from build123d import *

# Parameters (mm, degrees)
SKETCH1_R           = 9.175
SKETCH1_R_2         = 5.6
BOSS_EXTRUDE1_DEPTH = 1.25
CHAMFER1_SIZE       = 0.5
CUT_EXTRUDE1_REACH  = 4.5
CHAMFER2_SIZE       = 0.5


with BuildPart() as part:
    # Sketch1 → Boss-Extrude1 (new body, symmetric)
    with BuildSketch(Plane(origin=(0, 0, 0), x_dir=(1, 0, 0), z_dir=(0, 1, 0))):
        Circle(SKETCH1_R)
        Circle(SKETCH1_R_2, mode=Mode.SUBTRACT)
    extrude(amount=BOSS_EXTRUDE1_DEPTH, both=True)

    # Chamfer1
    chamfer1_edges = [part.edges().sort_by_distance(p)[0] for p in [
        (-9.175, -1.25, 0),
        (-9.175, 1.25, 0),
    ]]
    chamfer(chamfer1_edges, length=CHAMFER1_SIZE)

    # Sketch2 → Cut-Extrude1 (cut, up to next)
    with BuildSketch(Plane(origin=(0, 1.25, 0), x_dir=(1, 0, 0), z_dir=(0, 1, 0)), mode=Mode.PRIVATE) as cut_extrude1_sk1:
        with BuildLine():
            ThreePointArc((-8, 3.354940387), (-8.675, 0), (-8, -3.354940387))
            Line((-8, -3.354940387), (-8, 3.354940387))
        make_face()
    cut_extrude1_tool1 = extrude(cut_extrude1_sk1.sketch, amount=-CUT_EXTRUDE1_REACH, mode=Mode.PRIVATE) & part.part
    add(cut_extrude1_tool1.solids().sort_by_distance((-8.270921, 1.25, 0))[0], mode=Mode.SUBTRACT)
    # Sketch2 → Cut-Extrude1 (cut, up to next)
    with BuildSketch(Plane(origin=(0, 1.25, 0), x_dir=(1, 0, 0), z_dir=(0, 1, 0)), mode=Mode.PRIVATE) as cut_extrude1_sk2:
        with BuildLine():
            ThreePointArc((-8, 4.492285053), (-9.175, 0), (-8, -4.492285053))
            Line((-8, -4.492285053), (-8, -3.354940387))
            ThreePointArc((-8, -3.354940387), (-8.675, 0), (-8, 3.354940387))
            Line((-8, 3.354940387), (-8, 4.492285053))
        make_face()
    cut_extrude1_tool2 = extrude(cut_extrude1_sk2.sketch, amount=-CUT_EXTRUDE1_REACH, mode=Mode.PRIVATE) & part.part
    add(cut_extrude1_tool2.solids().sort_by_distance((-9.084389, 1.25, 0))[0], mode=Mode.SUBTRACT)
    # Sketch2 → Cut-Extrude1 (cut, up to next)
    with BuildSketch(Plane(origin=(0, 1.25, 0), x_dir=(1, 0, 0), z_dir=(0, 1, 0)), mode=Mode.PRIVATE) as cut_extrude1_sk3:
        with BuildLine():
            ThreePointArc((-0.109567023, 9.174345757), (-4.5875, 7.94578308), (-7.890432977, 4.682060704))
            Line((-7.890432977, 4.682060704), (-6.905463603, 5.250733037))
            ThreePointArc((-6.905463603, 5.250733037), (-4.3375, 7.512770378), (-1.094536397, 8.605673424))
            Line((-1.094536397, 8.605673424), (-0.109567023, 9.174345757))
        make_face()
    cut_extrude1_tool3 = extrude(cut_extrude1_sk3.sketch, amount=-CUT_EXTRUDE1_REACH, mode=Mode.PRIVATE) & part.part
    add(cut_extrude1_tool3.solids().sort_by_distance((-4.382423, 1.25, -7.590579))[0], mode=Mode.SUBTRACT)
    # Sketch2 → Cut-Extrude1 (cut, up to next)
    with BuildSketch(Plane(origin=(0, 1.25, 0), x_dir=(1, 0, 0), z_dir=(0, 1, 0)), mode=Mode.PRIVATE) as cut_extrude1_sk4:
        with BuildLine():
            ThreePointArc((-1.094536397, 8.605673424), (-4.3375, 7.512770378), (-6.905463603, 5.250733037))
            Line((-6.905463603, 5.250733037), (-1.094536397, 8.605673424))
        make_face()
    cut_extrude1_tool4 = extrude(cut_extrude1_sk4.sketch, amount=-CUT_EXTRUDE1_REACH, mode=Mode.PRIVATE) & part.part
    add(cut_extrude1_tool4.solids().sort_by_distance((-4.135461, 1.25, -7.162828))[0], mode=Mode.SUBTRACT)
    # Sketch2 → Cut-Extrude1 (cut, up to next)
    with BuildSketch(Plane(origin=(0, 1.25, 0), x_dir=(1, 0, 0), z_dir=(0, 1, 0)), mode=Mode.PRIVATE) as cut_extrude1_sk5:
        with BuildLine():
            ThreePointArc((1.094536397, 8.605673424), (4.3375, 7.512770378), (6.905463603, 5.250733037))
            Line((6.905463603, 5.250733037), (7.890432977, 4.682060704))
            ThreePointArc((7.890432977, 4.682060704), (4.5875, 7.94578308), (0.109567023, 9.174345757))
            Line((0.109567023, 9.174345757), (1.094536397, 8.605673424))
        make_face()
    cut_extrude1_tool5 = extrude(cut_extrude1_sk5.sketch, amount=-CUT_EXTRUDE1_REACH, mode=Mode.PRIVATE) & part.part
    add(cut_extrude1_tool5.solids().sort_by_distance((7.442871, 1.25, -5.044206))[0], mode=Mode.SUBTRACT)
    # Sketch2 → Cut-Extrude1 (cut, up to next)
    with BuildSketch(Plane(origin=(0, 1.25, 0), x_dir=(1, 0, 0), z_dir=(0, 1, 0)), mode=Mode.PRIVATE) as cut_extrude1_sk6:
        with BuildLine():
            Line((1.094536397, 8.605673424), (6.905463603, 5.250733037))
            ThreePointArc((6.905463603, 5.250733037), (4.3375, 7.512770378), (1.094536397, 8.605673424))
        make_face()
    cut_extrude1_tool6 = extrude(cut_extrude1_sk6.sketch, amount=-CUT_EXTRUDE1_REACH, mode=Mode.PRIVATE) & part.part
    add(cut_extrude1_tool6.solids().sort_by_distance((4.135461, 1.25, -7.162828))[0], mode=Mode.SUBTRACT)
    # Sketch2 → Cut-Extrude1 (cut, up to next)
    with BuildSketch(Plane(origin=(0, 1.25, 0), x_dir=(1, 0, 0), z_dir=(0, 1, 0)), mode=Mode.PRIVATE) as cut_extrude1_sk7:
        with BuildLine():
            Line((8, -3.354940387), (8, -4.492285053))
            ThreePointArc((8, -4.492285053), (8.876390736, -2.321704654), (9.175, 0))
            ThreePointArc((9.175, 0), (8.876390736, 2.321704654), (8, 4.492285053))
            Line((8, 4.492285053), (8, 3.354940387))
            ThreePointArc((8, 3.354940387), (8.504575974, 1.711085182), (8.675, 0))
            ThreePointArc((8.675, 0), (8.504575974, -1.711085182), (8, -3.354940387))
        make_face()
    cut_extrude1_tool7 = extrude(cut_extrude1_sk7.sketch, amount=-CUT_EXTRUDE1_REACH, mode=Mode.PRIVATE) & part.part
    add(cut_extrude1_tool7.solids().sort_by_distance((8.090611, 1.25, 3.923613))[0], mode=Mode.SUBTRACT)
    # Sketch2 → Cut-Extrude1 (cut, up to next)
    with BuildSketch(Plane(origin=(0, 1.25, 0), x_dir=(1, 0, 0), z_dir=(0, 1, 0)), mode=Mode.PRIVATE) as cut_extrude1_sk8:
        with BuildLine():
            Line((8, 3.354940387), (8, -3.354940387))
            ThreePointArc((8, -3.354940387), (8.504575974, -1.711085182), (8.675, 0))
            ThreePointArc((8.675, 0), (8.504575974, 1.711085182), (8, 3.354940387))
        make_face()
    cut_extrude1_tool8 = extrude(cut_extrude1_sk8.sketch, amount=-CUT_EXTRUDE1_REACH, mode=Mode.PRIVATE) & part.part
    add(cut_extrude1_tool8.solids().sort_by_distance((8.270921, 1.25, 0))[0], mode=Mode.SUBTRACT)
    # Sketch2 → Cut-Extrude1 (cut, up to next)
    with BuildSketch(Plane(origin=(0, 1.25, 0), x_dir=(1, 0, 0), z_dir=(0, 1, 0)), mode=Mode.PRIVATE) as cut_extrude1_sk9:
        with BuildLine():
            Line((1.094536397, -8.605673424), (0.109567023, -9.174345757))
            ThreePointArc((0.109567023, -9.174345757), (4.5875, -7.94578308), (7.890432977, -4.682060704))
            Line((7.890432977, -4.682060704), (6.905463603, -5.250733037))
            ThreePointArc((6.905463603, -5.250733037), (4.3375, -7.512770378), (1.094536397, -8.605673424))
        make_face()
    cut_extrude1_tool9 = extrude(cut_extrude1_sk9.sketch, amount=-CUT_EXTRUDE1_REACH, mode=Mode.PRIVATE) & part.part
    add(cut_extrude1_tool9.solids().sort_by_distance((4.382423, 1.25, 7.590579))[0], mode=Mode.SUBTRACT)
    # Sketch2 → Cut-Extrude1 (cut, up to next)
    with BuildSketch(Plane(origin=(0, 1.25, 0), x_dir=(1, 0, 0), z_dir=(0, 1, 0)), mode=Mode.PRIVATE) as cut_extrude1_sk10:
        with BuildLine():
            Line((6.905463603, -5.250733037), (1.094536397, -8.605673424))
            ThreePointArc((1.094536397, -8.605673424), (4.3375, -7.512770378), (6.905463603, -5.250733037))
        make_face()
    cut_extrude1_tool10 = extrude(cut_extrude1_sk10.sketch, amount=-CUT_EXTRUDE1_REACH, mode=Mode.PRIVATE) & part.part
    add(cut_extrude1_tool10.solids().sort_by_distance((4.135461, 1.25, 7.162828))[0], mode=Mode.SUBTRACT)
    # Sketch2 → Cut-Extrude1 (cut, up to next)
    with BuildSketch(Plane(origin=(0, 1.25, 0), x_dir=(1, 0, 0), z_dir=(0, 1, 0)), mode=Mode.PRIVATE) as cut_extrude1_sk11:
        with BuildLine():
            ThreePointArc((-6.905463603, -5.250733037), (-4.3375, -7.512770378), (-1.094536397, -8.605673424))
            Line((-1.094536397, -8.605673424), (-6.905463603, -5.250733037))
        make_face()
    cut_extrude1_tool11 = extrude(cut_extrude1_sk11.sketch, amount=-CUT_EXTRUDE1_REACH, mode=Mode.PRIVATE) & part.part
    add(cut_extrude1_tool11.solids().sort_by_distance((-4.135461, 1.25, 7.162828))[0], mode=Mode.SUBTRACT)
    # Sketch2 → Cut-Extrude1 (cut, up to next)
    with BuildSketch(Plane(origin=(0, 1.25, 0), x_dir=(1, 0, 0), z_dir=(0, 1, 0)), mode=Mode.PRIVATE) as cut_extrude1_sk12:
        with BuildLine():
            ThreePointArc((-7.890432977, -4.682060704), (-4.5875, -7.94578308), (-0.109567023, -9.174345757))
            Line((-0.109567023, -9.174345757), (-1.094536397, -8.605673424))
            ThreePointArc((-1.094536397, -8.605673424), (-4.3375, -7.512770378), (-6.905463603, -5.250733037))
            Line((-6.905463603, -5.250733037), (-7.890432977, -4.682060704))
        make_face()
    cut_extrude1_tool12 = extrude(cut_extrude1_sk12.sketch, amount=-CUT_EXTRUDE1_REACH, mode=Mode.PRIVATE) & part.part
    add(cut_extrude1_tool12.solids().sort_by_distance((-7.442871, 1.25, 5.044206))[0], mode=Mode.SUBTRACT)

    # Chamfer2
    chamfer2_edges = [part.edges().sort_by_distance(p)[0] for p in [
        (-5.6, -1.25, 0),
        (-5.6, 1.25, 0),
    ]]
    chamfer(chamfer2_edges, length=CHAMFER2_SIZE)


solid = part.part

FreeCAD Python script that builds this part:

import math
import FreeCAD as App
import Part
import Sketcher

V = App.Vector
Q = App.Units.Quantity


def edges_at(feature, points):
    """Names of the edges that pass closest to the given points."""
    edges = feature.Shape.Edges
    near = lambda p: min(range(len(edges)), key=lambda i: edges[i].distToShape(Part.Vertex(*p))[0])
    return sorted({f"Edge{near(p) + 1}" for p in points})

doc = App.newDocument("Part")
body = doc.addObject("PartDesign::Body", "Body")

sketch1 = body.newObject("Sketcher::SketchObject", "Sketch")
sketch1.AttachmentSupport = (doc.getObject("XZ_Plane"), [""])
sketch1.MapMode = "FlatFace"
sketch1.addGeometry(Part.Circle(V(0, 0, 0), V(0, 0, 1), 9), False)
sketch1.addGeometry(Part.Circle(V(0, 0, 0), V(0, 0, 1), 6), False)
sketch1.addConstraint(Sketcher.Constraint("Coincident", 0, 3, -1, 1))
sketch1.addConstraint(Sketcher.Constraint("Coincident", 1, 3, -1, 1))
sketch1.addConstraint(Sketcher.Constraint("Diameter", 1, Q("11.2 mm")))
sketch1.addConstraint(Sketcher.Constraint("Diameter", 0, Q("18.35 mm")))
pad1 = body.newObject("PartDesign::Pad", "Pad")
pad1.Profile = sketch1
pad1.Length = 2.5
pad1.Midplane = True
doc.recompute()

chamfer = body.newObject("PartDesign::Chamfer", "Chamfer")
chamfer.Base = (pad1, edges_at(pad1, [(-9.175, -1.25, 0), (-9.175, 1.25, 0)]))
chamfer.Size = 0.5

sketch2 = body.newObject("Sketcher::SketchObject", "Sketch001")
sketch2.AttachmentSupport = (doc.getObject("XZ_Plane"), [""])
sketch2.MapMode = "FlatFace"
sketch2.AttachmentOffset = App.Placement(V(0, 0, -1.25), App.Rotation())
sketch2.addGeometry(Part.ArcOfCircle(Part.Circle(V(0, 0, 0), V(0, 0, 1), 9), math.radians(157), math.radians(203)), False)
sketch2.addGeometry(Part.LineSegment(V(-8, 3, 0), V(-8, -3, 0)), False)
sketch2.addConstraint(Sketcher.Constraint("Coincident", 0, 1, 1, 1))
sketch2.addConstraint(Sketcher.Constraint("Coincident", 1, 2, 0, 2))
sketch2.addConstraint(Sketcher.Constraint("Vertical", 1))
sketch2.addConstraint(Sketcher.Constraint("Coincident", 0, 3, -1, 1))
sketch2.addConstraint(Sketcher.Constraint("DistanceX", 0, 1, -1, 1, Q("8 mm")))
sketch2.addConstraint(Sketcher.Constraint("Radius", 0, Q("8.675 mm")))
pocket1 = body.newObject("PartDesign::Pocket", "Pocket")
pocket1.Profile = sketch2
pocket1.Type = "UpToFirst"
pocket1.Reversed = True

sketch3 = body.newObject("Sketcher::SketchObject", "Sketch002")
sketch3.AttachmentSupport = (doc.getObject("XZ_Plane"), [""])
sketch3.MapMode = "FlatFace"
sketch3.AttachmentOffset = App.Placement(V(0, 0, -1.25), App.Rotation())
sketch3.addGeometry(Part.ArcOfCircle(Part.Circle(V(0, 0, 0), V(0, 0, 1), 9.2), math.radians(151), math.radians(209)), False)
sketch3.addGeometry(Part.LineSegment(V(-8, 4.5, 0), V(-8, 3.4, 0)), False)
sketch3.addGeometry(Part.ArcOfCircle(Part.Circle(V(0, 0, 0), V(0, 0, 1), 8.7), math.radians(157), math.radians(203)), False)
sketch3.addGeometry(Part.LineSegment(V(-8, -3.4, 0), V(-8, -4.5, 0)), False)
sketch3.addConstraint(Sketcher.Constraint("Coincident", 0, 1, 1, 1))
sketch3.addConstraint(Sketcher.Constraint("Coincident", 1, 2, 2, 1))
sketch3.addConstraint(Sketcher.Constraint("Coincident", 2, 2, 3, 1))
sketch3.addConstraint(Sketcher.Constraint("Coincident", 3, 2, 0, 2))
sketch3.addConstraint(Sketcher.Constraint("Vertical", 1))
sketch3.addConstraint(Sketcher.Constraint("Vertical", 3))
sketch3.addConstraint(Sketcher.Constraint("Coincident", 0, 3, -1, 1))
sketch3.addConstraint(Sketcher.Constraint("Coincident", 2, 3, -1, 1))
sketch3.addConstraint(Sketcher.Constraint("Vertical", 1, 2, 2, 2))
sketch3.addConstraint(Sketcher.Constraint("DistanceX", 0, 1, -1, 1, Q("8 mm")))
sketch3.addConstraint(Sketcher.Constraint("Radius", 0, Q("9.175 mm")))
sketch3.addConstraint(Sketcher.Constraint("Radius", 2, Q("8.675 mm")))
pocket2 = body.newObject("PartDesign::Pocket", "Pocket001")
pocket2.Profile = sketch3
pocket2.Length = 2.5
pocket2.Reversed = True

sketch4 = body.newObject("Sketcher::SketchObject", "Sketch003")
sketch4.AttachmentSupport = (doc.getObject("XZ_Plane"), [""])
sketch4.MapMode = "FlatFace"
sketch4.AttachmentOffset = App.Placement(V(0, 0, -1.25), App.Rotation())
sketch4.addGeometry(Part.ArcOfCircle(Part.Circle(V(0, 0, 0), V(0, 0, 1), 9.2), math.radians(-149), math.radians(-91)), False)
sketch4.addGeometry(Part.LineSegment(V(-7.9, -4.7, 0), V(-6.9, -5.3, 0)), False)
sketch4.addGeometry(Part.ArcOfCircle(Part.Circle(V(0, 0, 0), V(0, 0, 1), 8.7), math.radians(-143), math.radians(-97)), False)
sketch4.addGeometry(Part.LineSegment(V(-1.1, -8.6, 0), V(-0.1, -9.2, 0)), False)
sketch4.addConstraint(Sketcher.Constraint("Coincident", 0, 1, 1, 1))
sketch4.addConstraint(Sketcher.Constraint("Coincident", 1, 2, 2, 1))
sketch4.addConstraint(Sketcher.Constraint("Coincident", 2, 2, 3, 1))
sketch4.addConstraint(Sketcher.Constraint("Coincident", 3, 2, 0, 2))
sketch4.addConstraint(Sketcher.Constraint("Coincident", 0, 3, -1, 1))
sketch4.addConstraint(Sketcher.Constraint("Coincident", 2, 3, -1, 1))
sketch4.addConstraint(Sketcher.Constraint("Parallel", 1, 3))
sketch4.addConstraint(Sketcher.Constraint("Equal", 1, 3))
sketch4.addConstraint(Sketcher.Constraint("Angle", 1, Q("-30 deg")))
sketch4.addConstraint(Sketcher.Constraint("Radius", 0, Q("9.175 mm")))
sketch4.addConstraint(Sketcher.Constraint("Radius", 2, Q("8.675 mm")))
sketch4.addConstraint(Sketcher.Constraint("DistanceY", 0, 1, -1, 1, Q("4.682061 mm")))
pocket3 = body.newObject("PartDesign::Pocket", "Pocket002")
pocket3.Profile = sketch4
pocket3.Type = "UpToFirst"
pocket3.Reversed = True

sketch5 = body.newObject("Sketcher::SketchObject", "Sketch004")
sketch5.AttachmentSupport = (doc.getObject("XZ_Plane"), [""])
sketch5.MapMode = "FlatFace"
sketch5.AttachmentOffset = App.Placement(V(0, 0, -1.25), App.Rotation())
sketch5.addGeometry(Part.ArcOfCircle(Part.Circle(V(0, 0, 0), V(0, 0, 1), 9), math.radians(-143), math.radians(-97)), False)
sketch5.addGeometry(Part.LineSegment(V(-7, -5, 0), V(-1, -9, 0)), False)
sketch5.addConstraint(Sketcher.Constraint("Coincident", 0, 1, 1, 1))
sketch5.addConstraint(Sketcher.Constraint("Coincident", 1, 2, 0, 2))
sketch5.addConstraint(Sketcher.Constraint("Coincident", 0, 3, -1, 1))
sketch5.addConstraint(Sketcher.Constraint("Angle", 1, Q("-30 deg")))
sketch5.addConstraint(Sketcher.Constraint("Radius", 0, Q("8.675 mm")))
sketch5.addConstraint(Sketcher.Constraint("Distance", 1, Q("6.709881 mm")))
pocket4 = body.newObject("PartDesign::Pocket", "Pocket003")
pocket4.Profile = sketch5
pocket4.Type = "UpToFirst"
pocket4.Reversed = True

sketch6 = body.newObject("Sketcher::SketchObject", "Sketch005")
sketch6.AttachmentSupport = (doc.getObject("XZ_Plane"), [""])
sketch6.MapMode = "FlatFace"
sketch6.AttachmentOffset = App.Placement(V(0, 0, -1.25), App.Rotation())
sketch6.addGeometry(Part.ArcOfCircle(Part.Circle(V(0, 0, 0), V(0, 0, 1), 8.7), math.radians(-83), math.radians(-37)), False)
sketch6.addGeometry(Part.LineSegment(V(6.9, -5.3, 0), V(7.9, -4.7, 0)), False)
sketch6.addGeometry(Part.ArcOfCircle(Part.Circle(V(0, 0, 0), V(0, 0, 1), 9.2), math.radians(-89), math.radians(-31)), False)
sketch6.addGeometry(Part.LineSegment(V(0.1, -9.2, 0), V(1.1, -8.6, 0)), False)
sketch6.addConstraint(Sketcher.Constraint("Coincident", 0, 2, 1, 1))
sketch6.addConstraint(Sketcher.Constraint("Coincident", 1, 2, 2, 2))
sketch6.addConstraint(Sketcher.Constraint("Coincident", 2, 1, 3, 1))
sketch6.addConstraint(Sketcher.Constraint("Coincident", 3, 2, 0, 1))
sketch6.addConstraint(Sketcher.Constraint("Coincident", 0, 3, -1, 1))
sketch6.addConstraint(Sketcher.Constraint("Coincident", 2, 3, -1, 1))
sketch6.addConstraint(Sketcher.Constraint("Parallel", 1, 3))
sketch6.addConstraint(Sketcher.Constraint("Equal", 1, 3))
sketch6.addConstraint(Sketcher.Constraint("Angle", 1, Q("30 deg")))
sketch6.addConstraint(Sketcher.Constraint("Radius", 0, Q("8.675 mm")))
sketch6.addConstraint(Sketcher.Constraint("Radius", 2, Q("9.175 mm")))
sketch6.addConstraint(Sketcher.Constraint("DistanceY", 1, 2, -1, 1, Q("4.682061 mm")))
pocket5 = body.newObject("PartDesign::Pocket", "Pocket004")
pocket5.Profile = sketch6
pocket5.Type = "UpToFirst"
pocket5.Reversed = True

sketch7 = body.newObject("Sketcher::SketchObject", "Sketch006")
sketch7.AttachmentSupport = (doc.getObject("XZ_Plane"), [""])
sketch7.MapMode = "FlatFace"
sketch7.AttachmentOffset = App.Placement(V(0, 0, -1.25), App.Rotation())
sketch7.addGeometry(Part.LineSegment(V(1, -9, 0), V(7, -5, 0)), False)
sketch7.addGeometry(Part.ArcOfCircle(Part.Circle(V(0, 0, 0), V(0, 0, 1), 9), math.radians(-83), math.radians(-37)), False)
sketch7.addConstraint(Sketcher.Constraint("Coincident", 0, 1, 1, 1))
sketch7.addConstraint(Sketcher.Constraint("Coincident", 1, 2, 0, 2))
sketch7.addConstraint(Sketcher.Constraint("Coincident", 1, 3, -1, 1))
sketch7.addConstraint(Sketcher.Constraint("Angle", 0, Q("30 deg")))
sketch7.addConstraint(Sketcher.Constraint("Radius", 1, Q("8.675 mm")))
sketch7.addConstraint(Sketcher.Constraint("Distance", 0, Q("6.709881 mm")))
pocket6 = body.newObject("PartDesign::Pocket", "Pocket005")
pocket6.Profile = sketch7
pocket6.Type = "UpToFirst"
pocket6.Reversed = True

sketch8 = body.newObject("Sketcher::SketchObject", "Sketch007")
sketch8.AttachmentSupport = (doc.getObject("XZ_Plane"), [""])
sketch8.MapMode = "FlatFace"
sketch8.AttachmentOffset = App.Placement(V(0, 0, -1.25), App.Rotation())
sketch8.addGeometry(Part.LineSegment(V(8, 3.4, 0), V(8, 4.5, 0)), False)
sketch8.addGeometry(Part.ArcOfCircle(Part.Circle(V(0, 0, 0), V(0, 0, 1), 9.2), math.radians(0), math.radians(29)), False)
sketch8.addGeometry(Part.ArcOfCircle(Part.Circle(V(0, 0, 0), V(0, 0, 1), 9.2), math.radians(-29), math.radians(0)), False)
sketch8.addGeometry(Part.LineSegment(V(8, -4.5, 0), V(8, -3.4, 0)), False)
sketch8.addGeometry(Part.ArcOfCircle(Part.Circle(V(0, 0, 0), V(0, 0, 1), 8.7), math.radians(-23), math.radians(0)), False)
sketch8.addGeometry(Part.ArcOfCircle(Part.Circle(V(0, 0, 0), V(0, 0, 1), 8.7), math.radians(0), math.radians(23)), False)
sketch8.addConstraint(Sketcher.Constraint("Coincident", 0, 2, 1, 2))
sketch8.addConstraint(Sketcher.Constraint("Tangent", 1, 1, 2, 2))
sketch8.addConstraint(Sketcher.Constraint("Coincident", 2, 1, 3, 1))
sketch8.addConstraint(Sketcher.Constraint("Coincident", 3, 2, 4, 1))
sketch8.addConstraint(Sketcher.Constraint("Tangent", 4, 2, 5, 1))
sketch8.addConstraint(Sketcher.Constraint("Coincident", 5, 2, 0, 1))
sketch8.addConstraint(Sketcher.Constraint("Vertical", 0))
sketch8.addConstraint(Sketcher.Constraint("Vertical", 3))
sketch8.addConstraint(Sketcher.Constraint("Coincident", 1, 3, -1, 1))
sketch8.addConstraint(Sketcher.Constraint("Coincident", 4, 3, -1, 1))
sketch8.addConstraint(Sketcher.Constraint("Equal", 1, 2))
sketch8.addConstraint(Sketcher.Constraint("Equal", 4, 5))
sketch8.addConstraint(Sketcher.Constraint("PointOnObject", 1, 1, -1))
sketch8.addConstraint(Sketcher.Constraint("PointOnObject", 4, 2, -1))
sketch8.addConstraint(Sketcher.Constraint("Vertical", 0, 2, 2, 1))
sketch8.addConstraint(Sketcher.Constraint("DistanceX", -1, 1, 0, 2, Q("8 mm")))
sketch8.addConstraint(Sketcher.Constraint("Radius", 1, Q("9.175 mm")))
sketch8.addConstraint(Sketcher.Constraint("Radius", 4, Q("8.675 mm")))
pocket7 = body.newObject("PartDesign::Pocket", "Pocket006")
pocket7.Profile = sketch8
pocket7.Type = "UpToFirst"
pocket7.Reversed = True

sketch9 = body.newObject("Sketcher::SketchObject", "Sketch008")
sketch9.AttachmentSupport = (doc.getObject("XZ_Plane"), [""])
sketch9.MapMode = "FlatFace"
sketch9.AttachmentOffset = App.Placement(V(0, 0, -1.25), App.Rotation())
sketch9.addGeometry(Part.LineSegment(V(8, -3.4, 0), V(8, 3.4, 0)), False)
sketch9.addGeometry(Part.ArcOfCircle(Part.Circle(V(0, 0, 0), V(0, 0, 1), 8.7), math.radians(0), math.radians(23)), False)
sketch9.addGeometry(Part.ArcOfCircle(Part.Circle(V(0, 0, 0), V(0, 0, 1), 8.7), math.radians(-23), math.radians(0)), False)
sketch9.addConstraint(Sketcher.Constraint("Coincident", 0, 2, 1, 2))
sketch9.addConstraint(Sketcher.Constraint("Tangent", 1, 1, 2, 2))
sketch9.addConstraint(Sketcher.Constraint("Coincident", 2, 1, 0, 1))
sketch9.addConstraint(Sketcher.Constraint("Vertical", 0))
sketch9.addConstraint(Sketcher.Constraint("Coincident", 1, 3, -1, 1))
sketch9.addConstraint(Sketcher.Constraint("Equal", 1, 2))
sketch9.addConstraint(Sketcher.Constraint("PointOnObject", 1, 1, -1))
sketch9.addConstraint(Sketcher.Constraint("DistanceX", -1, 1, 0, 2, Q("8 mm")))
sketch9.addConstraint(Sketcher.Constraint("Radius", 1, Q("8.675 mm")))
pocket8 = body.newObject("PartDesign::Pocket", "Pocket007")
pocket8.Profile = sketch9
pocket8.Type = "UpToFirst"
pocket8.Reversed = True

sketch10 = body.newObject("Sketcher::SketchObject", "Sketch009")
sketch10.AttachmentSupport = (doc.getObject("XZ_Plane"), [""])
sketch10.MapMode = "FlatFace"
sketch10.AttachmentOffset = App.Placement(V(0, 0, -1.25), App.Rotation())
sketch10.addGeometry(Part.LineSegment(V(1.1, 8.6, 0), V(0.1, 9.2, 0)), False)
sketch10.addGeometry(Part.ArcOfCircle(Part.Circle(V(0, 0, 0), V(0, 0, 1), 9.2), math.radians(31), math.radians(89)), False)
sketch10.addGeometry(Part.LineSegment(V(7.9, 4.7, 0), V(6.9, 5.3, 0)), False)
sketch10.addGeometry(Part.ArcOfCircle(Part.Circle(V(0, 0, 0), V(0, 0, 1), 8.7), math.radians(37), math.radians(83)), False)
sketch10.addConstraint(Sketcher.Constraint("Coincident", 0, 2, 1, 2))
sketch10.addConstraint(Sketcher.Constraint("Coincident", 1, 1, 2, 1))
sketch10.addConstraint(Sketcher.Constraint("Coincident", 2, 2, 3, 1))
sketch10.addConstraint(Sketcher.Constraint("Coincident", 3, 2, 0, 1))
sketch10.addConstraint(Sketcher.Constraint("Coincident", 1, 3, -1, 1))
sketch10.addConstraint(Sketcher.Constraint("Coincident", 3, 3, -1, 1))
sketch10.addConstraint(Sketcher.Constraint("Parallel", 0, 2))
sketch10.addConstraint(Sketcher.Constraint("Equal", 0, 2))
sketch10.addConstraint(Sketcher.Constraint("Angle", 0, Q("150 deg")))
sketch10.addConstraint(Sketcher.Constraint("Radius", 1, Q("9.175 mm")))
sketch10.addConstraint(Sketcher.Constraint("Radius", 3, Q("8.675 mm")))
sketch10.addConstraint(Sketcher.Constraint("DistanceY", -1, 1, 1, 1, Q("4.682061 mm")))
pocket9 = body.newObject("PartDesign::Pocket", "Pocket008")
pocket9.Profile = sketch10
pocket9.Type = "UpToFirst"
pocket9.Reversed = True

sketch11 = body.newObject("Sketcher::SketchObject", "Sketch010")
sketch11.AttachmentSupport = (doc.getObject("XZ_Plane"), [""])
sketch11.MapMode = "FlatFace"
sketch11.AttachmentOffset = App.Placement(V(0, 0, -1.25), App.Rotation())
sketch11.addGeometry(Part.LineSegment(V(7, 5, 0), V(1, 9, 0)), False)
sketch11.addGeometry(Part.ArcOfCircle(Part.Circle(V(0, 0, 0), V(0, 0, 1), 9), math.radians(37), math.radians(83)), False)
sketch11.addConstraint(Sketcher.Constraint("Coincident", 0, 1, 1, 1))
sketch11.addConstraint(Sketcher.Constraint("Coincident", 1, 2, 0, 2))
sketch11.addConstraint(Sketcher.Constraint("Coincident", 1, 3, -1, 1))
sketch11.addConstraint(Sketcher.Constraint("Angle", 0, Q("150 deg")))
sketch11.addConstraint(Sketcher.Constraint("Radius", 1, Q("8.675 mm")))
sketch11.addConstraint(Sketcher.Constraint("Distance", 0, Q("6.709881 mm")))
pocket10 = body.newObject("PartDesign::Pocket", "Pocket009")
pocket10.Profile = sketch11
pocket10.Type = "UpToFirst"
pocket10.Reversed = True

sketch12 = body.newObject("Sketcher::SketchObject", "Sketch011")
sketch12.AttachmentSupport = (doc.getObject("XZ_Plane"), [""])
sketch12.MapMode = "FlatFace"
sketch12.AttachmentOffset = App.Placement(V(0, 0, -1.25), App.Rotation())
sketch12.addGeometry(Part.ArcOfCircle(Part.Circle(V(0, 0, 0), V(0, 0, 1), 9), math.radians(97), math.radians(143)), False)
sketch12.addGeometry(Part.LineSegment(V(-1, 9, 0), V(-7, 5, 0)), False)
sketch12.addConstraint(Sketcher.Constraint("Coincident", 0, 1, 1, 1))
sketch12.addConstraint(Sketcher.Constraint("Coincident", 1, 2, 0, 2))
sketch12.addConstraint(Sketcher.Constraint("Coincident", 0, 3, -1, 1))
sketch12.addConstraint(Sketcher.Constraint("Angle", 1, Q("-150 deg")))
sketch12.addConstraint(Sketcher.Constraint("Radius", 0, Q("8.675 mm")))
sketch12.addConstraint(Sketcher.Constraint("Distance", 1, Q("6.709881 mm")))
pocket11 = body.newObject("PartDesign::Pocket", "Pocket010")
pocket11.Profile = sketch12
pocket11.Type = "UpToFirst"
pocket11.Reversed = True

sketch13 = body.newObject("Sketcher::SketchObject", "Sketch012")
sketch13.AttachmentSupport = (doc.getObject("XZ_Plane"), [""])
sketch13.MapMode = "FlatFace"
sketch13.AttachmentOffset = App.Placement(V(0, 0, -1.25), App.Rotation())
sketch13.addGeometry(Part.ArcOfCircle(Part.Circle(V(0, 0, 0), V(0, 0, 1), 9.2), math.radians(91), math.radians(149)), False)
sketch13.addGeometry(Part.LineSegment(V(-0.1, 9.2, 0), V(-1.1, 8.6, 0)), False)
sketch13.addGeometry(Part.ArcOfCircle(Part.Circle(V(0, 0, 0), V(0, 0, 1), 8.7), math.radians(97), math.radians(143)), False)
sketch13.addGeometry(Part.LineSegment(V(-6.9, 5.3, 0), V(-7.9, 4.7, 0)), False)
sketch13.addConstraint(Sketcher.Constraint("Coincident", 0, 1, 1, 1))
sketch13.addConstraint(Sketcher.Constraint("Coincident", 1, 2, 2, 1))
sketch13.addConstraint(Sketcher.Constraint("Coincident", 2, 2, 3, 1))
sketch13.addConstraint(Sketcher.Constraint("Coincident", 3, 2, 0, 2))
sketch13.addConstraint(Sketcher.Constraint("Coincident", 0, 3, -1, 1))
sketch13.addConstraint(Sketcher.Constraint("Coincident", 2, 3, -1, 1))
sketch13.addConstraint(Sketcher.Constraint("Parallel", 1, 3))
sketch13.addConstraint(Sketcher.Constraint("Equal", 1, 3))
sketch13.addConstraint(Sketcher.Constraint("Angle", 1, Q("-150 deg")))
sketch13.addConstraint(Sketcher.Constraint("Radius", 0, Q("9.175 mm")))
sketch13.addConstraint(Sketcher.Constraint("Radius", 2, Q("8.675 mm")))
sketch13.addConstraint(Sketcher.Constraint("DistanceY", -1, 1, 3, 2, Q("4.682061 mm")))
pocket12 = body.newObject("PartDesign::Pocket", "Pocket011")
pocket12.Profile = sketch13
pocket12.Length = 2.5
pocket12.Reversed = True
doc.recompute()

chamfer2 = body.newObject("PartDesign::Chamfer", "Chamfer001")
chamfer2.Base = (pocket12, edges_at(pocket12, [(-5.6, -1.25, 0), (-5.6, 1.25, 0)]))
chamfer2.Size = 0.5

doc.recompute()
